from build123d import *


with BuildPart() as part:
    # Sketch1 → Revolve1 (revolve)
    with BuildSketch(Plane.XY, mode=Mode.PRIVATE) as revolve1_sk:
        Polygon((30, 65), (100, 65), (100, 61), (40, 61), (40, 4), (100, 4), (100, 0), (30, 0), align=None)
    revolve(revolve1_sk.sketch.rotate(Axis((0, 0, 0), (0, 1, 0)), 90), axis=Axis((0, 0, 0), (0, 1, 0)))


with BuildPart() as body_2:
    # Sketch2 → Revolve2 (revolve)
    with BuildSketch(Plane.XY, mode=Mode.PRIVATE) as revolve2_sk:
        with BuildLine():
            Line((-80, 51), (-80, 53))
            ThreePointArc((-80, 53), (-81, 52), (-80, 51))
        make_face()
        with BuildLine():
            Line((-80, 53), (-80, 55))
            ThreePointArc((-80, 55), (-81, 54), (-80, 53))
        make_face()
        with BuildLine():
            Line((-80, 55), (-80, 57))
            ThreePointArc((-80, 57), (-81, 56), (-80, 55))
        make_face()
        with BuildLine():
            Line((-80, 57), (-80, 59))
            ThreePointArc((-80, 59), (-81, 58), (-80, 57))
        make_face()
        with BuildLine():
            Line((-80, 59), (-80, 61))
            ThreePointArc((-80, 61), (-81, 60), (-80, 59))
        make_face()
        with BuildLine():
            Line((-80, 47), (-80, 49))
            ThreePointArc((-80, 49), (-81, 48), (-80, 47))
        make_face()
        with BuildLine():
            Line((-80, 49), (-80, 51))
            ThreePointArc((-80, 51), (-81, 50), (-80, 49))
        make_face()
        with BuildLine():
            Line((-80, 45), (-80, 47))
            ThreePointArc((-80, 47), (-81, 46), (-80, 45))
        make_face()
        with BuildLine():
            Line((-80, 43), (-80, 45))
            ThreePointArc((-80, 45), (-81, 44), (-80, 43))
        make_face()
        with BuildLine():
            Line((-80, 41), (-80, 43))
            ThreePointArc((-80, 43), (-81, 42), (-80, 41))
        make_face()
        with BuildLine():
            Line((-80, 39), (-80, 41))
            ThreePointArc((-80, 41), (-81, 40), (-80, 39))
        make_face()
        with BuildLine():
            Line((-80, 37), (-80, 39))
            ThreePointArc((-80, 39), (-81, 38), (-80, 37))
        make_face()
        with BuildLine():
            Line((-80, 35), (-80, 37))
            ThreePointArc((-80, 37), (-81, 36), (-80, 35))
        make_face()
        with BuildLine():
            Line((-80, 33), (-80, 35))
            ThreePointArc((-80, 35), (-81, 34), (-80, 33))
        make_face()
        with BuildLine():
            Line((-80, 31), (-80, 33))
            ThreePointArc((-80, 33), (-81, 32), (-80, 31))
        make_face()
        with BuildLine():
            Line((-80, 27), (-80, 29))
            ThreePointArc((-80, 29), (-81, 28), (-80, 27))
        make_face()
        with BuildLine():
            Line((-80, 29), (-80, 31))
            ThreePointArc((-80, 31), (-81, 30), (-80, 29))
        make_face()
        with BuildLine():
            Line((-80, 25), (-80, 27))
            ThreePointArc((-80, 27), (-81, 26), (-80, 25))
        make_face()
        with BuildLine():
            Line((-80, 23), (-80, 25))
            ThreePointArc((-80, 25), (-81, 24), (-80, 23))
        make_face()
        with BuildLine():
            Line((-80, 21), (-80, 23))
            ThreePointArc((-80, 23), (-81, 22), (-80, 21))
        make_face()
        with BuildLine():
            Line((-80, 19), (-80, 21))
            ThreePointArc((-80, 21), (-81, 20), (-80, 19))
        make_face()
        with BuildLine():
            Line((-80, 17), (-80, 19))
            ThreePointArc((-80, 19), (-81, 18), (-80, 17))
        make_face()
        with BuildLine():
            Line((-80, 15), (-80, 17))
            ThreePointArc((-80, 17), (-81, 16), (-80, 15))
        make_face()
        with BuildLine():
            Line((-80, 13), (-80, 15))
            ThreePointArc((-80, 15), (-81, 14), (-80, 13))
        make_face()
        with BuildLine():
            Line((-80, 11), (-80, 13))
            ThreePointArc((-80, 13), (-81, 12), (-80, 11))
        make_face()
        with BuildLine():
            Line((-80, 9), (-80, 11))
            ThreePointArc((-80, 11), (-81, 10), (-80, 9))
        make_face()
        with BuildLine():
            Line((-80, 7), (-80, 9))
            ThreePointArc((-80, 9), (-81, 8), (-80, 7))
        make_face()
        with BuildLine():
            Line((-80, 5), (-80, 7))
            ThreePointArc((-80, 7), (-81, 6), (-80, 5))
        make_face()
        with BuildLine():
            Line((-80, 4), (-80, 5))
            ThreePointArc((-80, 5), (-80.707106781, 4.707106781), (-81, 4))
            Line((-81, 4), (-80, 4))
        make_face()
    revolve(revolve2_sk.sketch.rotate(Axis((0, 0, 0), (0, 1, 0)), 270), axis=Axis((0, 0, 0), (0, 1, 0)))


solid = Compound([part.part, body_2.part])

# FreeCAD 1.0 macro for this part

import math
import FreeCAD as App
import Part
import Sketcher
from FreeCAD import Vector


def add_polygon(sketch, points):
    """Adds a closed chain of lines whose ends are joined by coincident constraints."""
    first, n = sketch.GeometryCount, len(points)
    for a, b in zip(points, points[1:] + points[:1]):
        sketch.addGeometry(Part.LineSegment(App.Vector(*a, 0), App.Vector(*b, 0)), False)
    for i in range(n):
        sketch.addConstraint(Sketcher.Constraint("Coincident", first + i, 2, first + (i + 1) % n, 1))

doc = App.newDocument("Part")
body = doc.addObject("PartDesign::Body", "Body")

# Sketch on XY plane
sketch1 = body.newObject("Sketcher::SketchObject", "Sketch")
sketch1.AttachmentSupport = (doc.getObject("XY_Plane"), [""])
sketch1.MapMode = "FlatFace"
add_polygon(sketch1, [(100, 65), (30, 65), (30, 0), (100, 0), (100, 4), (40, 4), (40, 61), (100, 61)])  # lines 0-7
sketch1.addConstraint([
    Sketcher.Constraint("Horizontal", 0),
    Sketcher.Constraint("Vertical", 1),
    Sketcher.Constraint("Horizontal", 2),
    Sketcher.Constraint("Vertical", 3),
    Sketcher.Constraint("Horizontal", 4),
    Sketcher.Constraint("Vertical", 5),
    Sketcher.Constraint("Horizontal", 6),
    Sketcher.Constraint("Vertical", 7),
    Sketcher.Constraint("PointOnObject", 1, 2, -1),
    Sketcher.Constraint("Vertical", 3, 2, 6, 2),
    Sketcher.Constraint("Equal", 3, 7),
    Sketcher.Constraint("DistanceX", 0, 2, 0, 1, 70.0),
    Sketcher.Constraint("DistanceX", 4, 2, 4, 1, 60.0),
    Sketcher.Constraint("DistanceY", 1, 2, 1, 1, 65.0),
    Sketcher.Constraint("DistanceY", 3, 1, 3, 2, 4.0),
    Sketcher.Constraint("DistanceX", -1, 1, 0, 2, 30.0),
])
revolution = body.newObject("PartDesign::Revolution", "Revolution")
revolution.Profile = sketch1
revolution.ReferenceAxis = (sketch1, ["V_Axis"])
revolution.Angle = 360
body2 = doc.addObject("PartDesign::Body", "Body001")
body2.AllowCompound = True

# Sketch on XY plane
sketch2 = body2.newObject("Sketcher::SketchObject", "Sketch001")
sketch2.AttachmentSupport = (doc.getObject("XY_Plane001"), [""])
sketch2.MapMode = "FlatFace"
sketch2.addGeometry([
    Part.LineSegment(Vector(-80, 51, 0), Vector(-80, 53, 0)),  # 0
    Part.ArcOfCircle(Part.Circle(Vector(-80, 52, 0), Vector(0, 0, 1), 1), math.radians(90), math.radians(270)),  # 1
    Part.LineSegment(Vector(-80, 53, 0), Vector(-80, 55, 0)),  # 2
    Part.ArcOfCircle(Part.Circle(Vector(-80, 54, 0), Vector(0, 0, 1), 1), math.radians(90), math.radians(270)),  # 3
    Part.LineSegment(Vector(-80, 55, 0), Vector(-80, 57, 0)),  # 4
    Part.ArcOfCircle(Part.Circle(Vector(-80, 56, 0), Vector(0, 0, 1), 1), math.radians(90), math.radians(270)),  # 5
    Part.LineSegment(Vector(-80, 57, 0), Vector(-80, 59, 0)),  # 6
    Part.ArcOfCircle(Part.Circle(Vector(-80, 58, 0), Vector(0, 0, 1), 1), math.radians(90), math.radians(270)),  # 7
    Part.LineSegment(Vector(-80, 59, 0), Vector(-80, 61, 0)),  # 8
    Part.ArcOfCircle(Part.Circle(Vector(-80, 60, 0), Vector(0, 0, 1), 1), math.radians(90), math.radians(270)),  # 9
    Part.LineSegment(Vector(-80, 47, 0), Vector(-80, 49, 0)),  # 10
    Part.ArcOfCircle(Part.Circle(Vector(-80, 48, 0), Vector(0, 0, 1), 1), math.radians(90), math.radians(270)),  # 11
    Part.LineSegment(Vector(-80, 49, 0), Vector(-80, 51, 0)),  # 12
    Part.ArcOfCircle(Part.Circle(Vector(-80, 50, 0), Vector(0, 0, 1), 1), math.radians(90), math.radians(270)),  # 13
    Part.LineSegment(Vector(-80, 45, 0), Vector(-80, 47, 0)),  # 14
    Part.ArcOfCircle(Part.Circle(Vector(-80, 46, 0), Vector(0, 0, 1), 1), math.radians(90), math.radians(270)),  # 15
    Part.LineSegment(Vector(-80, 43, 0), Vector(-80, 45, 0)),  # 16
    Part.ArcOfCircle(Part.Circle(Vector(-80, 44, 0), Vector(0, 0, 1), 1), math.radians(90), math.radians(270)),  # 17
    Part.LineSegment(Vector(-80, 41, 0), Vector(-80, 43, 0)),  # 18
    Part.ArcOfCircle(Part.Circle(Vector(-80, 42, 0), Vector(0, 0, 1), 1), math.radians(90), math.radians(270)),  # 19
    Part.LineSegment(Vector(-80, 39, 0), Vector(-80, 41, 0)),  # 20
    Part.ArcOfCircle(Part.Circle(Vector(-80, 40, 0), Vector(0, 0, 1), 1), math.radians(90), math.radians(270)),  # 21
    Part.LineSegment(Vector(-80, 37, 0), Vector(-80, 39, 0)),  # 22
    Part.ArcOfCircle(Part.Circle(Vector(-80, 38, 0), Vector(0, 0, 1), 1), math.radians(90), math.radians(270)),  # 23
    Part.LineSegment(Vector(-80, 35, 0), Vector(-80, 37, 0)),  # 24
    Part.ArcOfCircle(Part.Circle(Vector(-80, 36, 0), Vector(0, 0, 1), 1), math.radians(90), math.radians(270)),  # 25
    Part.LineSegment(Vector(-80, 33, 0), Vector(-80, 35, 0)),  # 26
    Part.ArcOfCircle(Part.Circle(Vector(-80, 34, 0), Vector(0, 0, 1), 1), math.radians(90), math.radians(270)),  # 27
    Part.LineSegment(Vector(-80, 31, 0), Vector(-80, 33, 0)),  # 28
    Part.ArcOfCircle(Part.Circle(Vector(-80, 32, 0), Vector(0, 0, 1), 1), math.radians(90), math.radians(270)),  # 29
    Part.LineSegment(Vector(-80, 27, 0), Vector(-80, 29, 0)),  # 30
    Part.ArcOfCircle(Part.Circle(Vector(-80, 28, 0), Vector(0, 0, 1), 1), math.radians(90), math.radians(270)),  # 31
    Part.LineSegment(Vector(-80, 29, 0), Vector(-80, 31, 0)),  # 32
    Part.ArcOfCircle(Part.Circle(Vector(-80, 30, 0), Vector(0, 0, 1), 1), math.radians(90), math.radians(270)),  # 33
    Part.LineSegment(Vector(-80, 25, 0), Vector(-80, 27, 0)),  # 34
    Part.ArcOfCircle(Part.Circle(Vector(-80, 26, 0), Vector(0, 0, 1), 1), math.radians(90), math.radians(270)),  # 35
    Part.LineSegment(Vector(-80, 23, 0), Vector(-80, 25, 0)),  # 36
    Part.ArcOfCircle(Part.Circle(Vector(-80, 24, 0), Vector(0, 0, 1), 1), math.radians(90), math.radians(270)),  # 37
    Part.LineSegment(Vector(-80, 21, 0), Vector(-80, 23, 0)),  # 38
    Part.ArcOfCircle(Part.Circle(Vector(-80, 22, 0), Vector(0, 0, 1), 1), math.radians(90), math.radians(270)),  # 39
    Part.LineSegment(Vector(-80, 19, 0), Vector(-80, 21, 0)),  # 40
    Part.ArcOfCircle(Part.Circle(Vector(-80, 20, 0), Vector(0, 0, 1), 1), math.radians(90), math.radians(270)),  # 41
    Part.LineSegment(Vector(-80, 17, 0), Vector(-80, 19, 0)),  # 42
    Part.ArcOfCircle(Part.Circle(Vector(-80, 18, 0), Vector(0, 0, 1), 1), math.radians(90), math.radians(270)),  # 43
    Part.LineSegment(Vector(-80, 15, 0), Vector(-80, 17, 0)),  # 44
    Part.ArcOfCircle(Part.Circle(Vector(-80, 16, 0), Vector(0, 0, 1), 1), math.radians(90), math.radians(270)),  # 45
    Part.LineSegment(Vector(-80, 13, 0), Vector(-80, 15, 0)),  # 46
    Part.ArcOfCircle(Part.Circle(Vector(-80, 14, 0), Vector(0, 0, 1), 1), math.radians(90), math.radians(270)),  # 47
    Part.LineSegment(Vector(-80, 11, 0), Vector(-80, 13, 0)),  # 48
    Part.ArcOfCircle(Part.Circle(Vector(-80, 12, 0), Vector(0, 0, 1), 1), math.radians(90), math.radians(270)),  # 49
    Part.LineSegment(Vector(-80, 9, 0), Vector(-80, 11, 0)),  # 50
    Part.ArcOfCircle(Part.Circle(Vector(-80, 10, 0), Vector(0, 0, 1), 1), math.radians(90), math.radians(270)),  # 51
    Part.LineSegment(Vector(-80, 7, 0), Vector(-80, 9, 0)),  # 52
    Part.ArcOfCircle(Part.Circle(Vector(-80, 8, 0), Vector(0, 0, 1), 1), math.radians(90), math.radians(270)),  # 53
    Part.LineSegment(Vector(-80, 5, 0), Vector(-80, 7, 0)),  # 54
    Part.ArcOfCircle(Part.Circle(Vector(-80, 6, 0), Vector(0, 0, 1), 1), math.radians(90), math.radians(270)),  # 55
    Part.LineSegment(Vector(-80, 4, 0), Vector(-80, 5, 0)),  # 56
    Part.ArcOfCircle(Part.Circle(Vector(-80, 4, 0), Vector(0, 0, 1), 1), math.radians(90), math.radians(180)),  # 57
    Part.LineSegment(Vector(-81, 4, 0), Vector(-80, 4, 0)),  # 58
], False)
sketch2.addConstraint([
    Sketcher.Constraint("Coincident", 0, 1, 1, 2),
    Sketcher.Constraint("Coincident", 1, 1, 0, 2),
    Sketcher.Constraint("Coincident", 2, 1, 3, 2),
    Sketcher.Constraint("Coincident", 3, 1, 2, 2),
    Sketcher.Constraint("Coincident", 4, 1, 5, 2),
    Sketcher.Constraint("Coincident", 5, 1, 4, 2),
    Sketcher.Constraint("Coincident", 6, 1, 7, 2),
    Sketcher.Constraint("Coincident", 7, 1, 6, 2),
    Sketcher.Constraint("Coincident", 8, 1, 9, 2),
    Sketcher.Constraint("Coincident", 9, 1, 8, 2),
    Sketcher.Constraint("Coincident", 10, 1, 11, 2),
    Sketcher.Constraint("Coincident", 11, 1, 10, 2),
    Sketcher.Constraint("Coincident", 12, 1, 13, 2),
    Sketcher.Constraint("Coincident", 13, 1, 12, 2),
    Sketcher.Constraint("Coincident", 14, 1, 15, 2),
    Sketcher.Constraint("Coincident", 15, 1, 14, 2),
    Sketcher.Constraint("Coincident", 16, 1, 17, 2),
    Sketcher.Constraint("Coincident", 17, 1, 16, 2),
    Sketcher.Constraint("Coincident", 18, 1, 19, 2),
    Sketcher.Constraint("Coincident", 19, 1, 18, 2),
    Sketcher.Constraint("Coincident", 20, 1, 21, 2),
    Sketcher.Constraint("Coincident", 21, 1, 20, 2),
    Sketcher.Constraint("Coincident", 22, 1, 23, 2),
    Sketcher.Constraint("Coincident", 23, 1, 22, 2),
    Sketcher.Constraint("Coincident", 24, 1, 25, 2),
    Sketcher.Constraint("Coincident", 25, 1, 24, 2),
    Sketcher.Constraint("Coincident", 26, 1, 27, 2),
    Sketcher.Constraint("Coincident", 27, 1, 26, 2),
    Sketcher.Constraint("Coincident", 28, 1, 29, 2),
    Sketcher.Constraint("Coincident", 29, 1, 28, 2),
    Sketcher.Constraint("Coincident", 30, 1, 31, 2),
    Sketcher.Constraint("Coincident", 31, 1, 30, 2),
    Sketcher.Constraint("Coincident", 32, 1, 33, 2),
    Sketcher.Constraint("Coincident", 33, 1, 32, 2),
    Sketcher.Constraint("Coincident", 34, 1, 35, 2),
    Sketcher.Constraint("Coincident", 35, 1, 34, 2),
    Sketcher.Constraint("Coincident", 36, 1, 37, 2),
    Sketcher.Constraint("Coincident", 37, 1, 36, 2),
    Sketcher.Constraint("Coincident", 38, 1, 39, 2),
    Sketcher.Constraint("Coincident", 39, 1, 38, 2),
    Sketcher.Constraint("Coincident", 40, 1, 41, 2),
    Sketcher.Constraint("Coincident", 41, 1, 40, 2),
    Sketcher.Constraint("Coincident", 42, 1, 43, 2),
    Sketcher.Constraint("Coincident", 43, 1, 42, 2),
    Sketcher.Constraint("Coincident", 44, 1, 45, 2),
    Sketcher.Constraint("Coincident", 45, 1, 44, 2),
    Sketcher.Constraint("Coincident", 46, 1, 47, 2),
    Sketcher.Constraint("Coincident", 47, 1, 46, 2),
    Sketcher.Constraint("Coincident", 48, 1, 49, 2),
    Sketcher.Constraint("Coincident", 49, 1, 48, 2),
    Sketcher.Constraint("Coincident", 50, 1, 51, 2),
    Sketcher.Constraint("Coincident", 51, 1, 50, 2),
    Sketcher.Constraint("Coincident", 52, 1, 53, 2),
    Sketcher.Constraint("Coincident", 53, 1, 52, 2),
    Sketcher.Constraint("Coincident", 54, 1, 55, 2),
    Sketcher.Constraint("Coincident", 55, 1, 54, 2),
    Sketcher.Constraint("Coincident", 56, 2, 57, 1),
    Sketcher.Constraint("Coincident", 57, 2, 58, 1),
    Sketcher.Constraint("Coincident", 58, 2, 56, 1),
    Sketcher.Constraint("Vertical", 0),
    Sketcher.Constraint("Vertical", 2),
    Sketcher.Constraint("Vertical", 4),
    Sketcher.Constraint("Vertical", 6),
    Sketcher.Constraint("Vertical", 8),
    Sketcher.Constraint("Vertical", 10),
    Sketcher.Constraint("Vertical", 12),
    Sketcher.Constraint("Vertical", 14),
    Sketcher.Constraint("Vertical", 16),
    Sketcher.Constraint("Vertical", 18),
    Sketcher.Constraint("Vertical", 20),
    Sketcher.Constraint("Vertical", 22),
    Sketcher.Constraint("Vertical", 24),
    Sketcher.Constraint("Vertical", 26),
    Sketcher.Constraint("Vertical", 28),
    Sketcher.Constraint("Vertical", 30),
    Sketcher.Constraint("Vertical", 32),
    Sketcher.Constraint("Vertical", 34),
    Sketcher.Constraint("Vertical", 36),
    Sketcher.Constraint("Vertical", 38),
    Sketcher.Constraint("Vertical", 40),
    Sketcher.Constraint("Vertical", 42),
    Sketcher.Constraint("Vertical", 44),
    Sketcher.Constraint("Vertical", 46),
    Sketcher.Constraint("Vertical", 48),
    Sketcher.Constraint("Vertical", 50),
    Sketcher.Constraint("Vertical", 52),
    Sketcher.Constraint("Vertical", 54),
    Sketcher.Constraint("Vertical", 56),
    Sketcher.Constraint("Horizontal", 58),
    Sketcher.Constraint("Coincident", 2, 1, 1, 1),
    Sketcher.Constraint("Coincident", 4, 1, 3, 1),
    Sketcher.Constraint("Coincident", 6, 1, 5, 1),
    Sketcher.Constraint("Coincident", 8, 1, 7, 1),
    Sketcher.Constraint("Coincident", 12, 1, 11, 1),
    Sketcher.Constraint("Coincident", 13, 1, 0, 1),
    Sketcher.Constraint("Coincident", 15, 1, 10, 1),
    Sketcher.Constraint("Coincident", 17, 1, 14, 1),
    Sketcher.Constraint("Coincident", 19, 1, 16, 1),
    Sketcher.Constraint("Coincident", 21, 1, 18, 1),
    Sketcher.Constraint("Coincident", 23, 1, 20, 1),
    Sketcher.Constraint("Coincident", 25, 1, 22, 1),
    Sketcher.Constraint("Coincident", 27, 1, 24, 1),
    Sketcher.Constraint("Coincident", 29, 1, 26, 1),
    Sketcher.Constraint("Coincident", 32, 1, 31, 1),
    Sketcher.Constraint("Coincident", 33, 1, 28, 1),
    Sketcher.Constraint("Coincident", 35, 1, 30, 1),
    Sketcher.Constraint("Coincident", 37, 1, 34, 1),
    Sketcher.Constraint("Coincident", 39, 1, 36, 1),
    Sketcher.Constraint("Coincident", 41, 1, 38, 1),
    Sketcher.Constraint("Coincident", 43, 1, 40, 1),
    Sketcher.Constraint("Coincident", 45, 1, 42, 1),
    Sketcher.Constraint("Coincident", 47, 1, 44, 1),
    Sketcher.Constraint("Coincident", 49, 1, 46, 1),
    Sketcher.Constraint("Coincident", 51, 1, 48, 1),
    Sketcher.Constraint("Coincident", 53, 1, 50, 1),
    Sketcher.Constraint("Coincident", 55, 1, 52, 1),
    Sketcher.Constraint("Coincident", 56, 2, 54, 1),
    Sketcher.Constraint("Coincident", 58, 2, 57, 3),
    Sketcher.Constraint("Equal", 1, 3),
    Sketcher.Constraint("Equal", 3, 5),
    Sketcher.Constraint("Equal", 5, 7),
    Sketcher.Constraint("Equal", 7, 9),
    Sketcher.Constraint("Equal", 9, 11),
    Sketcher.Constraint("Equal", 11, 13),
    Sketcher.Constraint("Equal", 13, 15),
    Sketcher.Constraint("Equal", 15, 17),
    Sketcher.Constraint("Equal", 17, 19),
    Sketcher.Constraint("Equal", 19, 21),
    Sketcher.Constraint("Equal", 21, 23),
    Sketcher.Constraint("Equal", 23, 25),
    Sketcher.Constraint("Equal", 25, 27),
    Sketcher.Constraint("Equal", 27, 29),
    Sketcher.Constraint("Equal", 29, 31),
    Sketcher.Constraint("Equal", 31, 33),
    Sketcher.Constraint("Equal", 33, 35),
    Sketcher.Constraint("Equal", 35, 37),
    Sketcher.Constraint("Equal", 37, 39),
    Sketcher.Constraint("Equal", 39, 41),
    Sketcher.Constraint("Equal", 41, 43),
    Sketcher.Constraint("Equal", 43, 45),
    Sketcher.Constraint("Equal", 45, 47),
    Sketcher.Constraint("Equal", 47, 49),
    Sketcher.Constraint("Equal", 49, 51),
    Sketcher.Constraint("Equal", 51, 53),
    Sketcher.Constraint("Equal", 53, 55),
    Sketcher.Constraint("Equal", 55, 57),
    Sketcher.Constraint("Vertical", 1, 3, 3, 3),
    Sketcher.Constraint("Vertical", 3, 3, 5, 3),
    Sketcher.Constraint("Vertical", 5, 3, 7, 3),
    Sketcher.Constraint("Vertical", 7, 3, 9, 3),
    Sketcher.Constraint("Vertical", 9, 3, 11, 3),
    Sketcher.Constraint("Vertical", 11, 3, 13, 3),
    Sketcher.Constraint("Vertical", 13, 3, 15, 3),
    Sketcher.Constraint("Vertical", 15, 3, 17, 3),
    Sketcher.Constraint("Vertical", 17, 3, 19, 3),
    Sketcher.Constraint("Vertical", 19, 3, 21, 3),
    Sketcher.Constraint("Vertical", 21, 3, 23, 3),
    Sketcher.Constraint("Vertical", 23, 3, 25, 3),
    Sketcher.Constraint("Vertical", 25, 3, 27, 3),
    Sketcher.Constraint("Vertical", 27, 3, 29, 3),
    Sketcher.Constraint("Vertical", 29, 3, 31, 3),
    Sketcher.Constraint("Vertical", 31, 3, 33, 3),
    Sketcher.Constraint("Vertical", 33, 3, 35, 3),
    Sketcher.Constraint("Vertical", 35, 3, 37, 3),
    Sketcher.Constraint("Vertical", 37, 3, 39, 3),
    Sketcher.Constraint("Vertical", 39, 3, 41, 3),
    Sketcher.Constraint("Vertical", 41, 3, 43, 3),
    Sketcher.Constraint("Vertical", 43, 3, 45, 3),
    Sketcher.Constraint("Vertical", 45, 3, 47, 3),
    Sketcher.Constraint("Vertical", 47, 3, 49, 3),
    Sketcher.Constraint("Vertical", 49, 3, 51, 3),
    Sketcher.Constraint("Vertical", 51, 3, 53, 3),
    Sketcher.Constraint("Vertical", 53, 3, 55, 3),
    Sketcher.Constraint("Vertical", 55, 3, 57, 3),
    Sketcher.Constraint("Radius", 1, 1.0),
    Sketcher.Constraint("DistanceX", 1, 3, -1, 1, 80.0),
    Sketcher.Constraint("DistanceY", -1, 1, 1, 3, 52.0),
])
revolution2 = body2.newObject("PartDesign::Revolution", "Revolution001")
revolution2.Profile = sketch2
revolution2.ReferenceAxis = (sketch2, ["V_Axis"])
revolution2.Angle = 360

doc.recompute()
